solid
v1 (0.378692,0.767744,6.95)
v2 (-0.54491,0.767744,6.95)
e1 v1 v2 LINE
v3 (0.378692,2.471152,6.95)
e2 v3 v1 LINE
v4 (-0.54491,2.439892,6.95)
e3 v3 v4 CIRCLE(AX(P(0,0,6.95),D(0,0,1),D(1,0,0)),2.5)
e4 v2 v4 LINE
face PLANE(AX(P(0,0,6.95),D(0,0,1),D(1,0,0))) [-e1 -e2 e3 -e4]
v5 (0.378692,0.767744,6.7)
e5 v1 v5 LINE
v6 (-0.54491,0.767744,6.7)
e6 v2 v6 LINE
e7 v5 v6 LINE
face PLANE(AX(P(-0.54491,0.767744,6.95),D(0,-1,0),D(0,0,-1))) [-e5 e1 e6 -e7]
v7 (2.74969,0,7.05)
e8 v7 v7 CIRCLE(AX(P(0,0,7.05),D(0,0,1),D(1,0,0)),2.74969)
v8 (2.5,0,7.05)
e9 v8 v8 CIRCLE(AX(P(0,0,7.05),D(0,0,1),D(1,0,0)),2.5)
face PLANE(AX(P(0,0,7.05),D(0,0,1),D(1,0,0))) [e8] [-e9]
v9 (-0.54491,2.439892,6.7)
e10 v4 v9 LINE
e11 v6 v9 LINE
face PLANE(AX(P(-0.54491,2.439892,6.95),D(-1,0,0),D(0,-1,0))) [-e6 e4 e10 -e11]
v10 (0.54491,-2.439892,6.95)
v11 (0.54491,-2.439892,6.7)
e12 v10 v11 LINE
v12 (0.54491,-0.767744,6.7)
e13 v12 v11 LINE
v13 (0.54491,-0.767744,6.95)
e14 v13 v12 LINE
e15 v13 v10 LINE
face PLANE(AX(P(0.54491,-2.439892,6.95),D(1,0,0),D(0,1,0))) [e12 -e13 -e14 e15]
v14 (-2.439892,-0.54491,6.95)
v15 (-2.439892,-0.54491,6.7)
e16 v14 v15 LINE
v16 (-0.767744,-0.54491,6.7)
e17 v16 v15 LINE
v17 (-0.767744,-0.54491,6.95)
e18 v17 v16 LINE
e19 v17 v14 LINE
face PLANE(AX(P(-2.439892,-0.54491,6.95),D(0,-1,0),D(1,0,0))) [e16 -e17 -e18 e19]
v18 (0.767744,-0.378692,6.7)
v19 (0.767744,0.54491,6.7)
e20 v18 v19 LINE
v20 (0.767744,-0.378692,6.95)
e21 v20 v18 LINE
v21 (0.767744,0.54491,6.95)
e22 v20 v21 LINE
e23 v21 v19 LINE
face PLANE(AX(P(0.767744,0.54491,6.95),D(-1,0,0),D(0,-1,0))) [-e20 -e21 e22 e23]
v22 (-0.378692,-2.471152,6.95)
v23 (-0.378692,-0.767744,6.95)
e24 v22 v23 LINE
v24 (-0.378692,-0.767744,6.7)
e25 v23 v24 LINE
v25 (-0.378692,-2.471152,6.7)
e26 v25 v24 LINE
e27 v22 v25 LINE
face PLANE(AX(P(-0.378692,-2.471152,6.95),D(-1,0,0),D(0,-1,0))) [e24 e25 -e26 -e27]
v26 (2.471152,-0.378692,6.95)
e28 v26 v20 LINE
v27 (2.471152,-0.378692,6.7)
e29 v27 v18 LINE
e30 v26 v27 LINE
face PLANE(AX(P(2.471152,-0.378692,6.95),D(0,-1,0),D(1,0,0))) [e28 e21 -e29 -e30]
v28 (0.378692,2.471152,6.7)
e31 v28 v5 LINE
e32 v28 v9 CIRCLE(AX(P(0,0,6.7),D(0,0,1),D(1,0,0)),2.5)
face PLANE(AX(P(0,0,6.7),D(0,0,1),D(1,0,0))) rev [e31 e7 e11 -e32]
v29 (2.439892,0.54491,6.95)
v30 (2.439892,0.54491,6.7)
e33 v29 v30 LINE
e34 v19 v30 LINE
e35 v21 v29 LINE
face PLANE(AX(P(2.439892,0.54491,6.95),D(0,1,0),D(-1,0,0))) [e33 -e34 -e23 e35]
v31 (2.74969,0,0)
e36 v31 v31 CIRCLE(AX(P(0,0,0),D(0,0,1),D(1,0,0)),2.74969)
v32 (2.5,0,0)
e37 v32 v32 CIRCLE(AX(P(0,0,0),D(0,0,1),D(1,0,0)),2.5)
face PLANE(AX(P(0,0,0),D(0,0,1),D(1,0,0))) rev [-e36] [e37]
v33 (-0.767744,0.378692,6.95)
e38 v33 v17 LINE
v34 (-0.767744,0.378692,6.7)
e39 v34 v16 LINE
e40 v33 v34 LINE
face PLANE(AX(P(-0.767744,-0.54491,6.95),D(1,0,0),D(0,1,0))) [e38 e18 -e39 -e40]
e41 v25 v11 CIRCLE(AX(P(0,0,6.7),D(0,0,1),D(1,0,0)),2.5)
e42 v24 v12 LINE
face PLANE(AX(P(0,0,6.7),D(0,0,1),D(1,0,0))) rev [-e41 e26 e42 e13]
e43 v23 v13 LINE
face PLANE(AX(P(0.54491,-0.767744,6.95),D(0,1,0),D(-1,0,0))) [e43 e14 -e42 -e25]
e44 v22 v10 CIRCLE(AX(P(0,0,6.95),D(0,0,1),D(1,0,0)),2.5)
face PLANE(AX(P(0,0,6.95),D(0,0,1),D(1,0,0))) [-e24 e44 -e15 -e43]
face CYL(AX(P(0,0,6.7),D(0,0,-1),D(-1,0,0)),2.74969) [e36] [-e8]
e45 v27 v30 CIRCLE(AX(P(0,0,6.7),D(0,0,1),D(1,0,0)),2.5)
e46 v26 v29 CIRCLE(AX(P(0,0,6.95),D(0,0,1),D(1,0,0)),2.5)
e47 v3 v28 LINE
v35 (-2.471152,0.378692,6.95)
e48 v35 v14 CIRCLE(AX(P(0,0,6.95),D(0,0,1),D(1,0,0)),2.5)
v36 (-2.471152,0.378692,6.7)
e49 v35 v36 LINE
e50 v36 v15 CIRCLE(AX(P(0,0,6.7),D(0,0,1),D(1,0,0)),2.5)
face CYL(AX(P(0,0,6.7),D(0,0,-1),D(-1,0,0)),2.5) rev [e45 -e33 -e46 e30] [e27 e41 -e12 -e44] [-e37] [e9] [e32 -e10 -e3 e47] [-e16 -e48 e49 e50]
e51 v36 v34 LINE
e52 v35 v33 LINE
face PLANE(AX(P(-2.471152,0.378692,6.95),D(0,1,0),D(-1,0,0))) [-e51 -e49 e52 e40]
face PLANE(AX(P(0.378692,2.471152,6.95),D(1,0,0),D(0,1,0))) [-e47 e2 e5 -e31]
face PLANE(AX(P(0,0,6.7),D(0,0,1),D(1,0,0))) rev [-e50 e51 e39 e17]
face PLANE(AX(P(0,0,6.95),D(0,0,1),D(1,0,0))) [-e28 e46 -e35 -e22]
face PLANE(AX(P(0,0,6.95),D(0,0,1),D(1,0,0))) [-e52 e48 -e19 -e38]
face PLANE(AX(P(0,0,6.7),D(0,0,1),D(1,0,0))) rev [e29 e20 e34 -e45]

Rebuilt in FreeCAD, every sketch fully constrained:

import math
import FreeCAD as App
import Part
import Sketcher
from FreeCAD import Vector

doc = App.newDocument("Part")
params = doc.addObject("Spreadsheet::Sheet", "Params")
for row, (alias, value) in enumerate([
    ("sketch1_diameter", "5 mm"),
    ("pad1_length", "6.7 mm"),
    ("sketch2_radius", "2.5 mm"),
    ("pad2_length", "0.25 mm"),
    ("sketch3_diameter", "5 mm"),
    ("pad3_length", "0.1 mm"),
], start=1):
    params.set(f"A{row}", alias)
    params.set(f"B{row}", "=" + value)
    params.setAlias(f"B{row}", alias)

body = doc.addObject("PartDesign::Body", "Body")

# Sketch on XY plane
sketch1 = body.newObject("Sketcher::SketchObject", "Sketch")
sketch1.AttachmentSupport = (doc.getObject("XY_Plane"), [""])
sketch1.MapMode = "FlatFace"
sketch1.addGeometry(Part.Circle(Vector(0, 0, 0), Vector(0, 0, 1), 2.74969), False)
sketch1.addGeometry(Part.Circle(Vector(0, 0, 0), Vector(0, 0, 1), 2.5), False)
sketch1.addConstraint(Sketcher.Constraint("Coincident", 0, 3, -1, 1))
sketch1.addConstraint(Sketcher.Constraint("Coincident", 1, 3, -1, 1))
sketch1.addConstraint(Sketcher.Constraint("Diameter", 1, 5.0))
sketch1.addConstraint(Sketcher.Constraint("Diameter", 0, 5.499379))
sketch1.setExpression("Constraints[2]", "Params.sketch1_diameter")
pad1 = body.newObject("PartDesign::Pad", "Pad")
pad1.Profile = sketch1
pad1.setExpression("Length", "Params.pad1_length")

# Sketch on XY plane
sketch2 = body.newObject("Sketcher::SketchObject", "Sketch001")
sketch2.AttachmentSupport = (doc.getObject("XY_Plane"), [""])
sketch2.MapMode = "FlatFace"
sketch2.AttachmentOffset = App.Placement(Vector(0, 0, 6.7), App.Rotation())
sketch2.addGeometry(Part.Circle(Vector(0, 0, 0), Vector(0, 0, 1), 2.74969), False)
sketch2.addGeometry(Part.ArcOfCircle(Part.Circle(Vector(0, 0, 0), Vector(0, 0, 1), 2.5), math.radians(12.589488), math.radians(81.287488)), False)
sketch2.addGeometry(Part.LineSegment(Vector(2.439892, 0.54491, 0), Vector(0.767744, 0.54491, 0)), False)
sketch2.addGeometry(Part.LineSegment(Vector(0.767744, 0.54491, 0), Vector(0.767744, -0.378692, 0)), False)
sketch2.addGeometry(Part.LineSegment(Vector(0.767744, -0.378692, 0), Vector(2.471152, -0.378692, 0)), False)
sketch2.addGeometry(Part.ArcOfCircle(Part.Circle(Vector(0, 0, 0), Vector(0, 0, 1), 2.5), math.radians(-77.410512), math.radians(-8.712512)), False)
sketch2.addGeometry(Part.LineSegment(Vector(0.54491, -2.439892, 0), Vector(0.54491, -0.767744, 0)), False)
sketch2.addGeometry(Part.LineSegment(Vector(0.54491, -0.767744, 0), Vector(-0.378692, -0.767744, 0)), False)
sketch2.addGeometry(Part.LineSegment(Vector(-0.378692, -0.767744, 0), Vector(-0.378692, -2.471152, 0)), False)
sketch2.addGeometry(Part.ArcOfCircle(Part.Circle(Vector(0, 0, 0), Vector(0, 0, 1), 2.5), math.radians(-167.410512), math.radians(-98.712512)), False)
sketch2.addGeometry(Part.LineSegment(Vector(-2.439892, -0.54491, 0), Vector(-0.767744, -0.54491, 0)), False)
sketch2.addGeometry(Part.LineSegment(Vector(-0.767744, -0.54491, 0), Vector(-0.767744, 0.378692, 0)), False)
sketch2.addGeometry(Part.LineSegment(Vector(-0.767744, 0.378692, 0), Vector(-2.471152, 0.378692, 0)), False)
sketch2.addGeometry(Part.ArcOfCircle(Part.Circle(Vector(0, 0, 0), Vector(0, 0, 1), 2.5), math.radians(102.589488), math.radians(171.287488)), False)
sketch2.addGeometry(Part.LineSegment(Vector(-0.54491, 2.439892, 0), Vector(-0.54491, 0.767744, 0)), False)
sketch2.addGeometry(Part.LineSegment(Vector(-0.54491, 0.767744, 0), Vector(0.378692, 0.767744, 0)), False)
sketch2.addGeometry(Part.LineSegment(Vector(0.378692, 0.767744, 0), Vector(0.378692, 2.471152, 0)), False)
sketch2.addConstraint(Sketcher.Constraint("Coincident", 1, 1, 2, 1))
sketch2.addConstraint(Sketcher.Constraint("Coincident", 2, 2, 3, 1))
sketch2.addConstraint(Sketcher.Constraint("Coincident", 3, 2, 4, 1))
sketch2.addConstraint(Sketcher.Constraint("Coincident", 4, 2, 5, 2))
sketch2.addConstraint(Sketcher.Constraint("Coincident", 5, 1, 6, 1))
sketch2.addConstraint(Sketcher.Constraint("Coincident", 6, 2, 7, 1))
sketch2.addConstraint(Sketcher.Constraint("Coincident", 7, 2, 8, 1))
sketch2.addConstraint(Sketcher.Constraint("Coincident", 8, 2, 9, 2))
sketch2.addConstraint(Sketcher.Constraint("Coincident", 9, 1, 10, 1))
sketch2.addConstraint(Sketcher.Constraint("Coincident", 10, 2, 11, 1))
sketch2.addConstraint(Sketcher.Constraint("Coincident", 11, 2, 12, 1))
sketch2.addConstraint(Sketcher.Constraint("Coincident", 12, 2, 13, 2))
sketch2.addConstraint(Sketcher.Constraint("Coincident", 13, 1, 14, 1))
sketch2.addConstraint(Sketcher.Constraint("Coincident", 14, 2, 15, 1))
sketch2.addConstraint(Sketcher.Constraint("Coincident", 15, 2, 16, 1))
sketch2.addConstraint(Sketcher.Constraint("Coincident", 16, 2, 1, 2))
sketch2.addConstraint(Sketcher.Constraint("Horizontal", 2))
sketch2.addConstraint(Sketcher.Constraint("Vertical", 3))
sketch2.addConstraint(Sketcher.Constraint("Horizontal", 4))
sketch2.addConstraint(Sketcher.Constraint("Vertical", 6))
sketch2.addConstraint(Sketcher.Constraint("Horizontal", 7))
sketch2.addConstraint(Sketcher.Constraint("Vertical", 8))
sketch2.addConstraint(Sketcher.Constraint("Horizontal", 10))
sketch2.addConstraint(Sketcher.Constraint("Vertical", 11))
sketch2.addConstraint(Sketcher.Constraint("Horizontal", 12))
sketch2.addConstraint(Sketcher.Constraint("Vertical", 14))
sketch2.addConstraint(Sketcher.Constraint("Horizontal", 15))
sketch2.addConstraint(Sketcher.Constraint("Vertical", 16))
sketch2.addConstraint(Sketcher.Constraint("Coincident", 0, 3, -1, 1))
sketch2.addConstraint(Sketcher.Constraint("Coincident", 1, 3, -1, 1))
sketch2.addConstraint(Sketcher.Constraint("Coincident", 5, 3, -1, 1))
sketch2.addConstraint(Sketcher.Constraint("Coincident", 9, 3, -1, 1))
sketch2.addConstraint(Sketcher.Constraint("Coincident", 13, 3, -1, 1))
sketch2.addConstraint(Sketcher.Constraint("Equal", 1, 5))
sketch2.addConstraint(Sketcher.Constraint("Equal", 5, 9))
sketch2.addConstraint(Sketcher.Constraint("Equal", 9, 13))
sketch2.addConstraint(Sketcher.Constraint("Symmetric", 2, 2, 10, 2, -1, 1))
sketch2.addConstraint(Sketcher.Constraint("Symmetric", 6, 2, 14, 2, -1, 1))
sketch2.addConstraint(Sketcher.Constraint("Equal", 4, 12))
sketch2.addConstraint(Sketcher.Constraint("Equal", 7, 15))
sketch2.addConstraint(Sketcher.Constraint("Equal", 15, 3))
sketch2.addConstraint(Sketcher.Constraint("Equal", 10, 6))
sketch2.addConstraint(Sketcher.Constraint("Equal", 12, 8))
sketch2.addConstraint(Sketcher.Constraint("Radius", 1, 2.5))
sketch2.addConstraint(Sketcher.Constraint("Diameter", 0, 5.499379))
sketch2.addConstraint(Sketcher.Constraint("DistanceY", 5, 1, 3, 2, 2.0612))
sketch2.addConstraint(Sketcher.Constraint("DistanceX", 2, 2, 2, 1, 1.672148))
sketch2.addConstraint(Sketcher.Constraint("DistanceX", 4, 1, 4, 2, 1.703408))
sketch2.setExpression("Constraints[43]", "Params.sketch2_radius")
pad2 = body.newObject("PartDesign::Pad", "Pad001")
pad2.Profile = sketch2
pad2.setExpression("Length", "Params.pad2_length")

# Sketch on XY plane
sketch3 = body.newObject("Sketcher::SketchObject", "Sketch002")
sketch3.AttachmentSupport = (doc.getObject("XY_Plane"), [""])
sketch3.MapMode = "FlatFace"
sketch3.AttachmentOffset = App.Placement(Vector(0, 0, 6.95), App.Rotation())
sketch3.addGeometry(Part.Circle(Vector(0, 0, 0), Vector(0, 0, 1), 2.74969), False)
sketch3.addGeometry(Part.Circle(Vector(0, 0, 0), Vector(0, 0, 1), 2.5), False)
sketch3.addConstraint(Sketcher.Constraint("Coincident", 0, 3, -1, 1))
sketch3.addConstraint(Sketcher.Constraint("Coincident", 1, 3, -1, 1))
sketch3.addConstraint(Sketcher.Constraint("Diameter", 1, 5.0))
sketch3.addConstraint(Sketcher.Constraint("Diameter", 0, 5.499379))
sketch3.setExpression("Constraints[2]", "Params.sketch3_diameter")
pad3 = body.newObject("PartDesign::Pad", "Pad002")
pad3.Profile = sketch3
pad3.setExpression("Length", "Params.pad3_length")

doc.recompute()
